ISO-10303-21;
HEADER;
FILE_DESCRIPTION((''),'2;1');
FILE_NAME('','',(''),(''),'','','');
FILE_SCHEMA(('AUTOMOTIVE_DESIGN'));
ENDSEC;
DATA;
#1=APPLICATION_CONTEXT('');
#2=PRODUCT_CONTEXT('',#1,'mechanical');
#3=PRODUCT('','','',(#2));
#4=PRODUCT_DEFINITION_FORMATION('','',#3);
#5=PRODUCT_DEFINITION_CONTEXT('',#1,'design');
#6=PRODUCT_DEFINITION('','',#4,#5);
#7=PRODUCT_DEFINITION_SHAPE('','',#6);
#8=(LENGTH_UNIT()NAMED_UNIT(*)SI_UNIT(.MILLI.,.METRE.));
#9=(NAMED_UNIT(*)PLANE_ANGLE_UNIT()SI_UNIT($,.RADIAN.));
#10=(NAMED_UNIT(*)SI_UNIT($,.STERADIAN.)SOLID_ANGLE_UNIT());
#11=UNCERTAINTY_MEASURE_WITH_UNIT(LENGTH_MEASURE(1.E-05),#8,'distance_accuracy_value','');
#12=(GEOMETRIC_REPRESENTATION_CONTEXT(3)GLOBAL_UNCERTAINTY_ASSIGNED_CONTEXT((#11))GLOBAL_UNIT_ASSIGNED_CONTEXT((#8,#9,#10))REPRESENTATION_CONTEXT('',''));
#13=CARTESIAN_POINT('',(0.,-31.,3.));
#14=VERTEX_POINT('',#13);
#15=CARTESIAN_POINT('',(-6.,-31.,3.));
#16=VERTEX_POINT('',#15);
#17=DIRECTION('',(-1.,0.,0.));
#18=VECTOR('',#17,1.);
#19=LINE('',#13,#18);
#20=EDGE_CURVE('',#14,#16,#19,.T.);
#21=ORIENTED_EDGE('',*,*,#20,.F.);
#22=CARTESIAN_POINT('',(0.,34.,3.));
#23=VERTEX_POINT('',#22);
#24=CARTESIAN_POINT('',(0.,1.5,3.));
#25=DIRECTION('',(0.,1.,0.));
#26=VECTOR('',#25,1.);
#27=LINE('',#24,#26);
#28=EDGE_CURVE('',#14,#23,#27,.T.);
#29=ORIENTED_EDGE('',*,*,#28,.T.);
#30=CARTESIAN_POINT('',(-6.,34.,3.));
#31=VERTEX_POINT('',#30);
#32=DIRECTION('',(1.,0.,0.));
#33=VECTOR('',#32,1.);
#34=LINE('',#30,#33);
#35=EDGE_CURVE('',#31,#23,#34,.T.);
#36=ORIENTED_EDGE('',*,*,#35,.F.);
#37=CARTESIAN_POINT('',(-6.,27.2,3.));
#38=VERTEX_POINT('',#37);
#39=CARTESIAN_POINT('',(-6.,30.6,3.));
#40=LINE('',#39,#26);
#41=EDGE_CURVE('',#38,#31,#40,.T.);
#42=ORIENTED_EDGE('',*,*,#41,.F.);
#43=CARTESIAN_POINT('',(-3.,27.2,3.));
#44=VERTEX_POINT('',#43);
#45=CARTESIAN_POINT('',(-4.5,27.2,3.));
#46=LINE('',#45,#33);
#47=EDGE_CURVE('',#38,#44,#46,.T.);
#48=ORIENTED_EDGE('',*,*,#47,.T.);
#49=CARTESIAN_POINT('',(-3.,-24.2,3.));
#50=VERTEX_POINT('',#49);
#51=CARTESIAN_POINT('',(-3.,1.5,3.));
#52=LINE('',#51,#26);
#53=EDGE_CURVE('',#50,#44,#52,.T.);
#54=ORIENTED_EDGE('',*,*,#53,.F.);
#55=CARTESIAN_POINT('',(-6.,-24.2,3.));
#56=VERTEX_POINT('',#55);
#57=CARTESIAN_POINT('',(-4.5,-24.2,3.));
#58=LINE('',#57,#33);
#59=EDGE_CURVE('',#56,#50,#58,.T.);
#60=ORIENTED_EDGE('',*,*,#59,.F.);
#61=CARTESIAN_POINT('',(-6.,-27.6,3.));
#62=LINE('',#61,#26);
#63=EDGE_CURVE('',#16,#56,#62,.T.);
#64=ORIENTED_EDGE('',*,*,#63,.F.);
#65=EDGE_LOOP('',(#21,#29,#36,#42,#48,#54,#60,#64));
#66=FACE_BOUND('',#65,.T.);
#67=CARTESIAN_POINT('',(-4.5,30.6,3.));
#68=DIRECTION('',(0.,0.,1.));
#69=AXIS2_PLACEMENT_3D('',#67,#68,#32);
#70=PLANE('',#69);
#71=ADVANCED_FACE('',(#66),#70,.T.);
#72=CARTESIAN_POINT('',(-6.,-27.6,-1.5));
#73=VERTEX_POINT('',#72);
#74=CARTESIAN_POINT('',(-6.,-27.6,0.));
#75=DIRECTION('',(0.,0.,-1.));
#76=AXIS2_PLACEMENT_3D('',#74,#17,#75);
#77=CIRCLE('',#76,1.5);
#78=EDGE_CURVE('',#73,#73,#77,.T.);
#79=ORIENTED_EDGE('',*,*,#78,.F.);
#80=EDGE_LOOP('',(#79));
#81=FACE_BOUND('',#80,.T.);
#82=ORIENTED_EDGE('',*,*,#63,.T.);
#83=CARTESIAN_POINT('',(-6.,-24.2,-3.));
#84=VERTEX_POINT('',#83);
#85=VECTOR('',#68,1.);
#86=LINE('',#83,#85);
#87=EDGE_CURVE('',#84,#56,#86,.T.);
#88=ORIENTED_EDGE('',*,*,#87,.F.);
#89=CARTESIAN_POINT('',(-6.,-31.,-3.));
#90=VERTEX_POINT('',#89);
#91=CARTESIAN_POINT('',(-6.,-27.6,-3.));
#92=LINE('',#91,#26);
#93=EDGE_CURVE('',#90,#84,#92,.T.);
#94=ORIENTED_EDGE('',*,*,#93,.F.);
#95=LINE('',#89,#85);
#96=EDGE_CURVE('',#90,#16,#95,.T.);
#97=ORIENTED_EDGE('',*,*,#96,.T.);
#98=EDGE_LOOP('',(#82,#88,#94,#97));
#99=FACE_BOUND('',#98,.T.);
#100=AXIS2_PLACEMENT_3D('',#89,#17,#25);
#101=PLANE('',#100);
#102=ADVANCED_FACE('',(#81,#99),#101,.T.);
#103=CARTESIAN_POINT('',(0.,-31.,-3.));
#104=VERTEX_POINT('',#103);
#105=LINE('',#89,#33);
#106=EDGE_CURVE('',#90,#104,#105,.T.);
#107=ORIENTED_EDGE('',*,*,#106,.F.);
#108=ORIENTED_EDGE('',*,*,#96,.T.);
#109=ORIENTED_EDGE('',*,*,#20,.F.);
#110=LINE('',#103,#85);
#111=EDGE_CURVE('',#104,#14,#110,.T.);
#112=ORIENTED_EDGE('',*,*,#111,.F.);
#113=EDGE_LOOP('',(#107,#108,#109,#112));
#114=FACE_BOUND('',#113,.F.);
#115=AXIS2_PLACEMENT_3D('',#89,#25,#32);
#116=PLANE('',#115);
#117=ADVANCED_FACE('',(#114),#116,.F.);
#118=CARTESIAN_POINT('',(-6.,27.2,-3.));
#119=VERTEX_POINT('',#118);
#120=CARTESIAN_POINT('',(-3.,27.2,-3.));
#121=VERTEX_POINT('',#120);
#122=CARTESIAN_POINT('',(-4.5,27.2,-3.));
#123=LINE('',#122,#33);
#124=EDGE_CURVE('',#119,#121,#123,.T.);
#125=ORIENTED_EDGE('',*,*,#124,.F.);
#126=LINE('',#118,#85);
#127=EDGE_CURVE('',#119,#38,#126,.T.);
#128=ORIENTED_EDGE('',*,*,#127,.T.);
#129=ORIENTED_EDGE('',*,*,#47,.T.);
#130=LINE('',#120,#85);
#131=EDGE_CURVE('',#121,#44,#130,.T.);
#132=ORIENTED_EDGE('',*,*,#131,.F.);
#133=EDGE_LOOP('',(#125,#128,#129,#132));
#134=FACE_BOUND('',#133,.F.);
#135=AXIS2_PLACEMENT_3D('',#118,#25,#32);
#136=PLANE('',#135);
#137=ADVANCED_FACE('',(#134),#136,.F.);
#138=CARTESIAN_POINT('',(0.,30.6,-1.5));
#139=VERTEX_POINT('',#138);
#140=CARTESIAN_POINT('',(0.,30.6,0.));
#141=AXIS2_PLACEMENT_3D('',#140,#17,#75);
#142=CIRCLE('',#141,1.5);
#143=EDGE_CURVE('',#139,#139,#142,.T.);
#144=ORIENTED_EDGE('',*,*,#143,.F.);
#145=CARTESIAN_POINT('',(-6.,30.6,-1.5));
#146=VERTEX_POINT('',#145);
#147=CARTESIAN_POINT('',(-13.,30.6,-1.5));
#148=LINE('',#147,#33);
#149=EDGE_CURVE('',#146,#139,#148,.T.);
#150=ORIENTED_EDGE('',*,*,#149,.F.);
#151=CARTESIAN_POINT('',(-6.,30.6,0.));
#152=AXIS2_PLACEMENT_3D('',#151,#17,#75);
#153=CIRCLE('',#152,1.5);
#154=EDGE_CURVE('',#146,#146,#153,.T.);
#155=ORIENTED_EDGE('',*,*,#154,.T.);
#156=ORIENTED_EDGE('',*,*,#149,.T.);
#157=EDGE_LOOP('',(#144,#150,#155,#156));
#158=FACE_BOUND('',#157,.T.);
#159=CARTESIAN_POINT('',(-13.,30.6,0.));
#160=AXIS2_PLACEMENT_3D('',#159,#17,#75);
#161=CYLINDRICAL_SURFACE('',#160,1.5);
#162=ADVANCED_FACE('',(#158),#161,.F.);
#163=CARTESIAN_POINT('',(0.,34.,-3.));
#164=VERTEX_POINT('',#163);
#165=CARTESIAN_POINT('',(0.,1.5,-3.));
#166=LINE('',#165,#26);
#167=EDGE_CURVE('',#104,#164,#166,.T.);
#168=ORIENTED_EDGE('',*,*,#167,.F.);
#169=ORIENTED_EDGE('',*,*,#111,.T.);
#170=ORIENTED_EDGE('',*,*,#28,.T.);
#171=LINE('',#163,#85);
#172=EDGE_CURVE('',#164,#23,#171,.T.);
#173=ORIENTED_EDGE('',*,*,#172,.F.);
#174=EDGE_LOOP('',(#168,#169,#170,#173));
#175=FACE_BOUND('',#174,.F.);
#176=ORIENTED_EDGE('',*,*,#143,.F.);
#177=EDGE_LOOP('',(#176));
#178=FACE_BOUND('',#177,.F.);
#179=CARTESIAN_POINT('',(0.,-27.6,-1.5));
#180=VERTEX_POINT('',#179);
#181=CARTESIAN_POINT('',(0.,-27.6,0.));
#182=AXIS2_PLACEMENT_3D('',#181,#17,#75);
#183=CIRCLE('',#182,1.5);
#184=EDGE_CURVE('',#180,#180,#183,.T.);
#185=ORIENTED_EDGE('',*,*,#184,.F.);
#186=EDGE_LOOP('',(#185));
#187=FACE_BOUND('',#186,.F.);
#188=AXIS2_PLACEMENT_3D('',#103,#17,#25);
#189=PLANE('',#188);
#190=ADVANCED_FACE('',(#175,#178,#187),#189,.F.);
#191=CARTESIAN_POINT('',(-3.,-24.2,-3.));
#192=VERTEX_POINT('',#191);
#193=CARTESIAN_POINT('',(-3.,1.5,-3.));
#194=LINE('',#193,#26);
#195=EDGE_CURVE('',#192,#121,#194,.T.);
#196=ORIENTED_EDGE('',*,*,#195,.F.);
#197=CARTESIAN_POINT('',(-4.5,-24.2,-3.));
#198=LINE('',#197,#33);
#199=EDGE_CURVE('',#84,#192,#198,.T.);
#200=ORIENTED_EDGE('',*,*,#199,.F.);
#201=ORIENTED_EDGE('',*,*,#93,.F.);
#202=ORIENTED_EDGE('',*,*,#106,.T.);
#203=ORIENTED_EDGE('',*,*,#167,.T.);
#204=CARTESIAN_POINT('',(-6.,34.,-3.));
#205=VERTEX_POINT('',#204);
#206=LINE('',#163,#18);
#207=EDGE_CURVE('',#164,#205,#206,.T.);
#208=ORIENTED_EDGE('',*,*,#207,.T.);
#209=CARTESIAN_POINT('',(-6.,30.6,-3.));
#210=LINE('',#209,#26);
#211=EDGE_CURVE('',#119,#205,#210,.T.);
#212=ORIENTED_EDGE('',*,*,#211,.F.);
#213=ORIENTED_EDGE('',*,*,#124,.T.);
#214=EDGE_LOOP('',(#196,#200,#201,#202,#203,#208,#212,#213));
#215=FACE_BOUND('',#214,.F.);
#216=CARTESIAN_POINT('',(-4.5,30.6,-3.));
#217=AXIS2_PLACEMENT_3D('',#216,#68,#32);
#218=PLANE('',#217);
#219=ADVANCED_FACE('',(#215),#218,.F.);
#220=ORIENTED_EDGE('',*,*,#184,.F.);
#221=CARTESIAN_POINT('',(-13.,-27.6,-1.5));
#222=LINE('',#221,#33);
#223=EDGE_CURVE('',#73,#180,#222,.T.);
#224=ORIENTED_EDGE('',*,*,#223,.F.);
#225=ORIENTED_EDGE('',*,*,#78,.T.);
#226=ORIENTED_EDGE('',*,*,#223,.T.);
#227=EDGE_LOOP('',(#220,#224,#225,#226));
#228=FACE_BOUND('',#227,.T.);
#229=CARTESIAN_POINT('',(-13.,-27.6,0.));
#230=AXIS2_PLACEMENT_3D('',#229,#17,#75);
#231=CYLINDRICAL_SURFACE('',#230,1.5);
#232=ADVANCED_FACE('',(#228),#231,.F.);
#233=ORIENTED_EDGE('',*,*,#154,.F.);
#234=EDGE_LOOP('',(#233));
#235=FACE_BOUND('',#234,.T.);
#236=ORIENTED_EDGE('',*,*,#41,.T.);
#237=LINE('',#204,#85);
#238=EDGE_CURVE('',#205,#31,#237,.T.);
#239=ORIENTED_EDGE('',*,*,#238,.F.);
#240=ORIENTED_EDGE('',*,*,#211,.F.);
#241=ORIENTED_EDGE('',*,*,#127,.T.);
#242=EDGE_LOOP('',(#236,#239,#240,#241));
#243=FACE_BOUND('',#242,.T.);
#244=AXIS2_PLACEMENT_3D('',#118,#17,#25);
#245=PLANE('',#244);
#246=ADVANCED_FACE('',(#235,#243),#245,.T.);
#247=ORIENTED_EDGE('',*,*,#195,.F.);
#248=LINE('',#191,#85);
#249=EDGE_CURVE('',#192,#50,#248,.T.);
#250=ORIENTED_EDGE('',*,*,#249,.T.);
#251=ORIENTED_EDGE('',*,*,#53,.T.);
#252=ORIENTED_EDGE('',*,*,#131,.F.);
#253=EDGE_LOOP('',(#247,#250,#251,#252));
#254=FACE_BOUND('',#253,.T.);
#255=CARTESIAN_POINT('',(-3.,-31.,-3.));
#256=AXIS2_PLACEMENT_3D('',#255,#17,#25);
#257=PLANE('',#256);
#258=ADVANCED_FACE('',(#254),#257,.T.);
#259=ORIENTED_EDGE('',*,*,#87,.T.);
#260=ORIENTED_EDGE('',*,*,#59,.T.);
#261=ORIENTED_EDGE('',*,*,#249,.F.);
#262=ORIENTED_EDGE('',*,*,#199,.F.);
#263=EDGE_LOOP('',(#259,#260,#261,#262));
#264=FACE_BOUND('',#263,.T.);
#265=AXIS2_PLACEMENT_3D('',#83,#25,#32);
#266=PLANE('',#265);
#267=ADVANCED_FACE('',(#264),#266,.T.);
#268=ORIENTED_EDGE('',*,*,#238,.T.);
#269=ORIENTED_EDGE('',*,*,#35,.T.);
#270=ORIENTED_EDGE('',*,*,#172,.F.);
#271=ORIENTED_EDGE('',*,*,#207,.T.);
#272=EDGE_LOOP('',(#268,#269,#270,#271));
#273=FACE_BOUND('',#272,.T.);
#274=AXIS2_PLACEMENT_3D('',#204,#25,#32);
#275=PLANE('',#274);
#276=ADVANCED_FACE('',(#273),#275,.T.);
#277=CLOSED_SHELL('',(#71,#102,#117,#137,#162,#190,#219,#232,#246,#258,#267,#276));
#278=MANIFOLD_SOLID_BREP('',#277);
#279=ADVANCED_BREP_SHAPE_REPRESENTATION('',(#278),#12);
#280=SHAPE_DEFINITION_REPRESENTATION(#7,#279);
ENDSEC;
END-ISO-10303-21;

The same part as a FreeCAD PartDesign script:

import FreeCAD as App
import Part
import Sketcher
from FreeCAD import Vector

doc = App.newDocument("Part")
body = doc.addObject("PartDesign::Body", "Body")

# Sketch on YZ plane
sketch1 = body.newObject("Sketcher::SketchObject", "Sketch")
sketch1.AttachmentSupport = (doc.getObject("YZ_Plane"), [""])
sketch1.MapMode = "FlatFace"
sketch1.AttachmentOffset = App.Placement(Vector(0, 0, -13), App.Rotation())
sketch1.addGeometry(Part.Circle(Vector(30.6, 0, 0), Vector(0, 0, 1), 1.5), False)
sketch1.addConstraint(Sketcher.Constraint("PointOnObject", 0, 3, -1))
sketch1.addConstraint(Sketcher.Constraint("Diameter", 0, 3.0))
sketch1.addConstraint(Sketcher.Constraint("DistanceX", -1, 1, 0, 3, 30.6))
pad1 = body.newObject("PartDesign::Pad", "Pad")
pad1.Profile = sketch1
pad1.Length = 14
body2 = doc.addObject("PartDesign::Body", "Body001")

# Sketch on YZ plane
sketch2 = body2.newObject("Sketcher::SketchObject", "Sketch001")
sketch2.AttachmentSupport = (doc.getObject("YZ_Plane001"), [""])
sketch2.MapMode = "FlatFace"
sketch2.AttachmentOffset = App.Placement(Vector(0, 0, -13), App.Rotation())
sketch2.addGeometry(Part.Circle(Vector(-27.6, 0, 0), Vector(0, 0, 1), 1.5), False)
sketch2.addConstraint(Sketcher.Constraint("PointOnObject", 0, 3, -1))
sketch2.addConstraint(Sketcher.Constraint("Diameter", 0, 3.0))
sketch2.addConstraint(Sketcher.Constraint("DistanceX", 0, 3, -1, 1, 27.6))
pad2 = body2.newObject("PartDesign::Pad", "Pad001")
pad2.Profile = sketch2
pad2.Length = 14
body3 = doc.addObject("PartDesign::Body", "Body002")

# Sketch on XY plane
sketch3 = body3.newObject("Sketcher::SketchObject", "Sketch002")
sketch3.AttachmentSupport = (doc.getObject("XY_Plane002"), [""])
sketch3.MapMode = "FlatFace"
sketch3.AttachmentOffset = App.Placement(Vector(0, 0, -3), App.Rotation())
sketch3.addGeometry(Part.LineSegment(Vector(-6, -24.2, 0), Vector(-6, -31, 0)), False)
sketch3.addGeometry(Part.LineSegment(Vector(-6, -31, 0), Vector(-3, -31, 0)), False)
sketch3.addGeometry(Part.LineSegment(Vector(-3, -31, 0), Vector(-3, -24.2, 0)), False)
sketch3.addGeometry(Part.LineSegment(Vector(-3, -24.2, 0), Vector(-6, -24.2, 0)), False)
sketch3.addConstraint(Sketcher.Constraint("Coincident", 0, 2, 1, 1))
sketch3.addConstraint(Sketcher.Constraint("Coincident", 1, 2, 2, 1))
sketch3.addConstraint(Sketcher.Constraint("Coincident", 2, 2, 3, 1))
sketch3.addConstraint(Sketcher.Constraint("Coincident", 3, 2, 0, 1))
sketch3.addConstraint(Sketcher.Constraint("Vertical", 0))
sketch3.addConstraint(Sketcher.Constraint("Horizontal", 1))
sketch3.addConstraint(Sketcher.Constraint("Vertical", 2))
sketch3.addConstraint(Sketcher.Constraint("Horizontal", 3))
sketch3.addConstraint(Sketcher.Constraint("DistanceX", 1, 1, 1, 2, 3.0))
sketch3.addConstraint(Sketcher.Constraint("DistanceY", 0, 2, 0, 1, 6.8))
sketch3.addConstraint(Sketcher.Constraint("DistanceX", 0, 2, -1, 1, 6.0))
sketch3.addConstraint(Sketcher.Constraint("DistanceY", 0, 2, -1, 1, 31.0))
pad3 = body3.newObject("PartDesign::Pad", "Pad002")
pad3.Profile = sketch3
pad3.Length = 6
body4 = doc.addObject("PartDesign::Body", "Body003")

# Sketch on XY plane
sketch4 = body4.newObject("Sketcher::SketchObject", "Sketch003")
sketch4.AttachmentSupport = (doc.getObject("XY_Plane003"), [""])
sketch4.MapMode = "FlatFace"
sketch4.AttachmentOffset = App.Placement(Vector(0, 0, -3), App.Rotation())
sketch4.addGeometry(Part.LineSegment(Vector(-6, 34, 0), Vector(-6, 27.2, 0)), False)
sketch4.addGeometry(Part.LineSegment(Vector(-6, 27.2, 0), Vector(-3, 27.2, 0)), False)
sketch4.addGeometry(Part.LineSegment(Vector(-3, 27.2, 0), Vector(-3, 34, 0)), False)
sketch4.addGeometry(Part.LineSegment(Vector(-3, 34, 0), Vector(-6, 34, 0)), False)
sketch4.addConstraint(Sketcher.Constraint("Coincident", 0, 2, 1, 1))
sketch4.addConstraint(Sketcher.Constraint("Coincident", 1, 2, 2, 1))
sketch4.addConstraint(Sketcher.Constraint("Coincident", 2, 2, 3, 1))
sketch4.addConstraint(Sketcher.Constraint("Coincident", 3, 2, 0, 1))
sketch4.addConstraint(Sketcher.Constraint("Vertical", 0))
sketch4.addConstraint(Sketcher.Constraint("Horizontal", 1))
sketch4.addConstraint(Sketcher.Constraint("Vertical", 2))
sketch4.addConstraint(Sketcher.Constraint("Horizontal", 3))
sketch4.addConstraint(Sketcher.Constraint("DistanceX", 1, 1, 1, 2, 3.0))
sketch4.addConstraint(Sketcher.Constraint("DistanceY", 0, 2, 0, 1, 6.8))
sketch4.addConstraint(Sketcher.Constraint("DistanceX", 0, 2, -1, 1, 6.0))
sketch4.addConstraint(Sketcher.Constraint("DistanceY", -1, 1, 2, 2, 34.0))
pad4 = body4.newObject("PartDesign::Pad", "Pad003")
pad4.Profile = sketch4
pad4.Length = 6
body5 = doc.addObject("PartDesign::Body", "Body004")

# Sketch on XY plane
sketch5 = body5.newObject("Sketcher::SketchObject", "Sketch004")
sketch5.AttachmentSupport = (doc.getObject("XY_Plane004"), [""])
sketch5.MapMode = "FlatFace"
sketch5.AttachmentOffset = App.Placement(Vector(0, 0, -3), App.Rotation())
sketch5.addGeometry(Part.LineSegment(Vector(-3, 34, 0), Vector(-3, -31, 0)), False)
sketch5.addGeometry(Part.LineSegment(Vector(-3, -31, 0), Vector(0, -31, 0)), False)
sketch5.addGeometry(Part.LineSegment(Vector(0, -31, 0), Vector(0, 34, 0)), False)
sketch5.addGeometry(Part.LineSegment(Vector(0, 34, 0), Vector(-3, 34, 0)), False)
sketch5.addConstraint(Sketcher.Constraint("Coincident", 0, 2, 1, 1))
sketch5.addConstraint(Sketcher.Constraint("Coincident", 1, 2, 2, 1))
sketch5.addConstraint(Sketcher.Constraint("Coincident", 2, 2, 3, 1))
sketch5.addConstraint(Sketcher.Constraint("Coincident", 3, 2, 0, 1))
sketch5.addConstraint(Sketcher.Constraint("Vertical", 0))
sketch5.addConstraint(Sketcher.Constraint("Horizontal", 1))
sketch5.addConstraint(Sketcher.Constraint("Vertical", 2))
sketch5.addConstraint(Sketcher.Constraint("Horizontal", 3))
sketch5.addConstraint(Sketcher.Constraint("PointOnObject", 1, 2, -2))
sketch5.addConstraint(Sketcher.Constraint("DistanceX", 1, 1, 1, 2, 3.0))
sketch5.addConstraint(Sketcher.Constraint("DistanceY", 0, 2, 0, 1, 65.0))
sketch5.addConstraint(Sketcher.Constraint("DistanceY", 0, 2, -1, 1, 31.0))
pad5 = body5.newObject("PartDesign::Pad", "Pad004")
pad5.Profile = sketch5
pad5.Length = 6
doc.recompute()

boolean = body5.newObject("PartDesign::Boolean", "Boolean")
boolean.Type = "Fuse"
boolean.addObjects([body3])
doc.recompute()

boolean2 = body5.newObject("PartDesign::Boolean", "Boolean001")
boolean2.Type = "Fuse"
boolean2.addObjects([body4])
doc.recompute()

boolean3 = body5.newObject("PartDesign::Boolean", "Boolean002")
boolean3.Type = "Cut"
boolean3.addObjects([body2])
doc.recompute()

boolean4 = body5.newObject("PartDesign::Boolean", "Boolean003")
boolean4.Type = "Cut"
boolean4.addObjects([body])

doc.recompute()
